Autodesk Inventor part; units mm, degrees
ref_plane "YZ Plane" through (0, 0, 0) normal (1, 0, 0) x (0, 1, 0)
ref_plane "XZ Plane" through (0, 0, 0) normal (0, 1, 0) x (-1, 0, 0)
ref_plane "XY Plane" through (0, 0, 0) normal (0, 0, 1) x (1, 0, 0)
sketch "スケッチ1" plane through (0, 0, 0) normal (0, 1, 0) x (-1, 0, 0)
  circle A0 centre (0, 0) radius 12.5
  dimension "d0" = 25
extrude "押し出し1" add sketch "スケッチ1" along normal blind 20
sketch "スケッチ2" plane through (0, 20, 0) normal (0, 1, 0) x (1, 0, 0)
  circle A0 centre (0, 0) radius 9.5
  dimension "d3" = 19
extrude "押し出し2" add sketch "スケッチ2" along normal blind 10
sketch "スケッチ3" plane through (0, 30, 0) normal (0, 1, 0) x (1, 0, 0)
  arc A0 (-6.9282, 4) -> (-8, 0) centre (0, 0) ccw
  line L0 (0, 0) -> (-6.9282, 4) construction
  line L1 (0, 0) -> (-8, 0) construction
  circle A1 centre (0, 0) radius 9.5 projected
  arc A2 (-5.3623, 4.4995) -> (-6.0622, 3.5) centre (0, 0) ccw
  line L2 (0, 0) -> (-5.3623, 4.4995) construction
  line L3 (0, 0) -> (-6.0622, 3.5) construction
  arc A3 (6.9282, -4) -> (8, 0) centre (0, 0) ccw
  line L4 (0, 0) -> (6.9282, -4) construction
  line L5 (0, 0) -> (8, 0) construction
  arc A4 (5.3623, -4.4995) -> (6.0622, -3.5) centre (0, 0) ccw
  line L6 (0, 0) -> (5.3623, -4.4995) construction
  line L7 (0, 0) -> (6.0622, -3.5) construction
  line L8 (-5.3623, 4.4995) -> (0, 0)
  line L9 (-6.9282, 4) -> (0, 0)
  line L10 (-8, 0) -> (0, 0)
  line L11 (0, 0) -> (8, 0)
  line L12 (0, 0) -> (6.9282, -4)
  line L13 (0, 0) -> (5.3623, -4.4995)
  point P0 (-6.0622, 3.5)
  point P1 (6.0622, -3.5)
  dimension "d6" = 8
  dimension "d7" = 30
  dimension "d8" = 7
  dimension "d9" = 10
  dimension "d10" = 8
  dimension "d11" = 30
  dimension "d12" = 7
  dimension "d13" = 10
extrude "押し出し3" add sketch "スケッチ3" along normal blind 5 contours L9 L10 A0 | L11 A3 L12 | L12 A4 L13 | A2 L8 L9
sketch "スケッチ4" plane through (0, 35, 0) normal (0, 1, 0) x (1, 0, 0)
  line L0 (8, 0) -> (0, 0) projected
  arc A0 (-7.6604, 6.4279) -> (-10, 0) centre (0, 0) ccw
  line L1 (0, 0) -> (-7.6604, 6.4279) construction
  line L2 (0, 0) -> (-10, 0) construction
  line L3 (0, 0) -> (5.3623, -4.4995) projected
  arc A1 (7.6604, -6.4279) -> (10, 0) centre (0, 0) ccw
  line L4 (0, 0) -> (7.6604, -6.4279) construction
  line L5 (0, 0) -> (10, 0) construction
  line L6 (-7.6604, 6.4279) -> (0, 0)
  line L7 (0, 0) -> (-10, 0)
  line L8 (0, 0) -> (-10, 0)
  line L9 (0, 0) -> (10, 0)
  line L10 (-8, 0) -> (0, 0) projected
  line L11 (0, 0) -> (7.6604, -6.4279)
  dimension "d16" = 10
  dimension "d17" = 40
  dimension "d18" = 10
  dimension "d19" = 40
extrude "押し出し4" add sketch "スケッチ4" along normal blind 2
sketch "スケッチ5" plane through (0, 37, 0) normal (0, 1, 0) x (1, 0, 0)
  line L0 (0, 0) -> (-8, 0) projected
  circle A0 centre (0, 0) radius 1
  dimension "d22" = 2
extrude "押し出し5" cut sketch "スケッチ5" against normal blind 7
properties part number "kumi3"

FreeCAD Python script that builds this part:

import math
import FreeCAD as App
import Part
import Sketcher
from FreeCAD import Vector
Q = App.Units.Quantity

doc = App.newDocument("Part")
params = doc.addObject("Spreadsheet::Sheet", "Params")
for row, (alias, value) in enumerate([
    ("sketch1_diameter", "25 mm"),
    ("pad1_length", "20 mm"),
    ("sketch2_diameter", "19 mm"),
    ("pad2_length", "10 mm"),
    ("sketch3_radius", "8 mm"),
    ("sketch3_length", "7 mm"),
    ("sketch3_length2", "1 mm"),
    ("pad3_length", "5 mm"),
    ("sketch4_radius", "10 mm"),
    ("sketch4_length", "7 mm"),
    ("pad4_length", "2 mm"),
    ("sketch5_diameter", "2 mm"),
    ("pocket1_length", "7 mm"),
], start=1):
    params.set(f"A{row}", alias)
    params.set(f"B{row}", "=" + value)
    params.setAlias(f"B{row}", alias)

body = doc.addObject("PartDesign::Body", "Body")

# Sketch on XZ plane
sketch1 = body.newObject("Sketcher::SketchObject", "Sketch")
sketch1.AttachmentSupport = (doc.getObject("XZ_Plane"), [""])
sketch1.MapMode = "FlatFace"
sketch1.addGeometry(Part.Circle(Vector(0, 0, 0), Vector(0, 0, 1), 12.5), False)
sketch1.addConstraint([
    Sketcher.Constraint("Coincident", 0, 3, -1, 1),
    Sketcher.Constraint("Diameter", 0, 25.0),
])
sketch1.setExpression("Constraints[1]", "Params.sketch1_diameter")
pad1 = body.newObject("PartDesign::Pad", "Pad")
pad1.Profile = sketch1
pad1.setExpression("Length", "Params.pad1_length")
pad1.Reversed = True

# Sketch on XZ plane
sketch2 = body.newObject("Sketcher::SketchObject", "Sketch001")
sketch2.AttachmentSupport = (doc.getObject("XZ_Plane"), [""])
sketch2.MapMode = "FlatFace"
sketch2.AttachmentOffset = App.Placement(Vector(0, 0, -20), App.Rotation())
sketch2.addGeometry(Part.Circle(Vector(0, 0, 0), Vector(0, 0, 1), 9.5), False)
sketch2.addConstraint([
    Sketcher.Constraint("Coincident", 0, 3, -1, 1),
    Sketcher.Constraint("Diameter", 0, 19.0),
])
sketch2.setExpression("Constraints[1]", "Params.sketch2_diameter")
pad2 = body.newObject("PartDesign::Pad", "Pad001")
pad2.Profile = sketch2
pad2.setExpression("Length", "Params.pad2_length")
pad2.Reversed = True

# Sketch on XZ plane
sketch3 = body.newObject("Sketcher::SketchObject", "Sketch002")
sketch3.AttachmentSupport = (doc.getObject("XZ_Plane"), [""])
sketch3.MapMode = "FlatFace"
sketch3.AttachmentOffset = App.Placement(Vector(0, 0, -30), App.Rotation())
sketch3.addGeometry([
    Part.LineSegment(Vector(-6.062194, -3.500011, 0), Vector(-6.9282, -4, 0)),  # 0
    Part.ArcOfCircle(Part.Circle(Vector(0, 0, 0), Vector(0, 0, 1), 7.999997), math.radians(180), math.radians(210.000012)),  # 1
    Part.LineSegment(Vector(-8, 0, 0), Vector(0, 0, 0)),  # 2
    Part.LineSegment(Vector(0, 0, 0), Vector(-5.3623, -4.4995, 0)),  # 3
    Part.ArcOfCircle(Part.Circle(Vector(0.003783, 0.002903, 0), Vector(0, 0, 1), 7.004747), math.radians(-149.994999), math.radians(-140.001726)),  # 4
    Part.LineSegment(Vector(8, 0, 0), Vector(0, 0, 0)),  # 5
    Part.LineSegment(Vector(0, 0, 0), Vector(5.3623, 4.4995, 0)),  # 6
    Part.ArcOfCircle(Part.Circle(Vector(-0.003783, -0.002903, 0), Vector(0, 0, 1), 7.004747), math.radians(30.005001), math.radians(39.998274)),  # 7
    Part.LineSegment(Vector(6.062194, 3.500011, 0), Vector(6.9282, 4, 0)),  # 8
    Part.ArcOfCircle(Part.Circle(Vector(0, 0, 0), Vector(0, 0, 1), 7.999997), math.radians(0), math.radians(30.000012)),  # 9
], False)
sketch3.addConstraint([
    Sketcher.Constraint("Coincident", 0, 2, 1, 2),
    Sketcher.Constraint("Coincident", 1, 1, 2, 1),
    Sketcher.Constraint("Coincident", 2, 2, 3, 1),
    Sketcher.Constraint("Coincident", 3, 2, 4, 2),
    Sketcher.Constraint("Coincident", 4, 1, 0, 1),
    Sketcher.Constraint("Coincident", 5, 2, 6, 1),
    Sketcher.Constraint("Coincident", 6, 2, 7, 2),
    Sketcher.Constraint("Coincident", 7, 1, 8, 1),
    Sketcher.Constraint("Coincident", 8, 2, 9, 2),
    Sketcher.Constraint("Coincident", 9, 1, 5, 1),
    Sketcher.Constraint("Horizontal", 2),
    Sketcher.Constraint("Horizontal", 5),
    Sketcher.Constraint("Coincident", 1, 3, -1, 1),
    Sketcher.Constraint("Coincident", 9, 3, -1, 1),
    Sketcher.Constraint("Coincident", 2, 2, -1, 1),
    Sketcher.Constraint("Coincident", 5, 2, -1, 1),
    Sketcher.Constraint("Equal", 4, 7),
    Sketcher.Constraint("Equal", 1, 9),
    Sketcher.Constraint("Symmetric", 4, 3, 7, 3, -1, 1),
    Sketcher.Constraint("Parallel", 3, 6),
    Sketcher.Constraint("Parallel", 0, 8),
    Sketcher.Constraint("Radius", 1, 8.0),
    Sketcher.Constraint("Angle", 8, Q("30 deg")),
    Sketcher.Constraint("Distance", 3, 7.0),
    Sketcher.Constraint("Angle", 3, Q("-140 deg")),
    Sketcher.Constraint("Distance", 0, 1.0),
    Sketcher.Constraint("DistanceY", 0, 2, -1, 1, 4.0),
    Sketcher.Constraint("DistanceY", -1, 1, 8, 2, 4.0),
    Sketcher.Constraint("Radius", 4, 7.0047),
])
sketch3.setExpression("Constraints[21]", "Params.sketch3_radius")
sketch3.setExpression("Constraints[23]", "Params.sketch3_length")
sketch3.setExpression("Constraints[25]", "Params.sketch3_length2")
pad3 = body.newObject("PartDesign::Pad", "Pad002")
pad3.Profile = sketch3
pad3.setExpression("Length", "Params.pad3_length")
pad3.Reversed = True

# Sketch on XZ plane
sketch4 = body.newObject("Sketcher::SketchObject", "Sketch003")
sketch4.AttachmentSupport = (doc.getObject("XZ_Plane"), [""])
sketch4.MapMode = "FlatFace"
sketch4.AttachmentOffset = App.Placement(Vector(0, 0, -35), App.Rotation())
sketch4.addGeometry([
    Part.LineSegment(Vector(10, 0, 0), Vector(0, 0, 0)),  # 0
    Part.LineSegment(Vector(0, 0, 0), Vector(5.3623, 4.4995, 0)),  # 1
    Part.LineSegment(Vector(5.362277, 4.499527, 0), Vector(7.6604, 6.4279, 0)),  # 2
    Part.ArcOfCircle(Part.Circle(Vector(0, 0, 0), Vector(0, 0, 1), 9.999981), math.radians(0), math.radians(40.000269)),  # 3
    Part.LineSegment(Vector(-10, 0, 0), Vector(0, 0, 0)),  # 4
    Part.LineSegment(Vector(0, 0, 0), Vector(-7.6604, -6.4279, 0)),  # 5
    Part.ArcOfCircle(Part.Circle(Vector(0, 0, 0), Vector(0, 0, 1), 9.999981), math.radians(180), math.radians(220.000269)),  # 6
], False)
sketch4.addConstraint([
    Sketcher.Constraint("Coincident", 0, 2, 1, 1),
    Sketcher.Constraint("Coincident", 1, 2, 2, 1),
    Sketcher.Constraint("Coincident", 2, 2, 3, 2),
    Sketcher.Constraint("Coincident", 3, 1, 0, 1),
    Sketcher.Constraint("Coincident", 4, 2, 5, 1),
    Sketcher.Constraint("Coincident", 5, 2, 6, 2),
    Sketcher.Constraint("Coincident", 6, 1, 4, 1),
    Sketcher.Constraint("Horizontal", 0),
    Sketcher.Constraint("Horizontal", 4),
    Sketcher.Constraint("Coincident", 3, 3, -1, 1),
    Sketcher.Constraint("Coincident", 6, 3, -1, 1),
    Sketcher.Constraint("Coincident", 0, 2, -1, 1),
    Sketcher.Constraint("Coincident", 4, 2, -1, 1),
    Sketcher.Constraint("Equal", 3, 6),
    Sketcher.Constraint("Parallel", 1, 2),
    Sketcher.Constraint("Parallel", 2, 5),
    Sketcher.Constraint("Radius", 3, 10.0),
    Sketcher.Constraint("Angle", 1, Q("40 deg")),
    Sketcher.Constraint("Distance", 1, 7.0),
])
sketch4.setExpression("Constraints[16]", "Params.sketch4_radius")
sketch4.setExpression("Constraints[18]", "Params.sketch4_length")
pad4 = body.newObject("PartDesign::Pad", "Pad003")
pad4.Profile = sketch4
pad4.setExpression("Length", "Params.pad4_length")
pad4.Reversed = True

# Sketch on XZ plane
sketch5 = body.newObject("Sketcher::SketchObject", "Sketch004")
sketch5.AttachmentSupport = (doc.getObject("XZ_Plane"), [""])
sketch5.MapMode = "FlatFace"
sketch5.AttachmentOffset = App.Placement(Vector(0, 0, -37), App.Rotation())
sketch5.addGeometry(Part.Circle(Vector(0, 0, 0), Vector(0, 0, 1), 1), False)
sketch5.addConstraint([
    Sketcher.Constraint("Coincident", 0, 3, -1, 1),
    Sketcher.Constraint("Diameter", 0, 2.0),
])
sketch5.setExpression("Constraints[1]", "Params.sketch5_diameter")
pocket1 = body.newObject("PartDesign::Pocket", "Pocket")
pocket1.Profile = sketch5
pocket1.setExpression("Length", "Params.pocket1_length")
pocket1.Reversed = True

doc.recompute()
